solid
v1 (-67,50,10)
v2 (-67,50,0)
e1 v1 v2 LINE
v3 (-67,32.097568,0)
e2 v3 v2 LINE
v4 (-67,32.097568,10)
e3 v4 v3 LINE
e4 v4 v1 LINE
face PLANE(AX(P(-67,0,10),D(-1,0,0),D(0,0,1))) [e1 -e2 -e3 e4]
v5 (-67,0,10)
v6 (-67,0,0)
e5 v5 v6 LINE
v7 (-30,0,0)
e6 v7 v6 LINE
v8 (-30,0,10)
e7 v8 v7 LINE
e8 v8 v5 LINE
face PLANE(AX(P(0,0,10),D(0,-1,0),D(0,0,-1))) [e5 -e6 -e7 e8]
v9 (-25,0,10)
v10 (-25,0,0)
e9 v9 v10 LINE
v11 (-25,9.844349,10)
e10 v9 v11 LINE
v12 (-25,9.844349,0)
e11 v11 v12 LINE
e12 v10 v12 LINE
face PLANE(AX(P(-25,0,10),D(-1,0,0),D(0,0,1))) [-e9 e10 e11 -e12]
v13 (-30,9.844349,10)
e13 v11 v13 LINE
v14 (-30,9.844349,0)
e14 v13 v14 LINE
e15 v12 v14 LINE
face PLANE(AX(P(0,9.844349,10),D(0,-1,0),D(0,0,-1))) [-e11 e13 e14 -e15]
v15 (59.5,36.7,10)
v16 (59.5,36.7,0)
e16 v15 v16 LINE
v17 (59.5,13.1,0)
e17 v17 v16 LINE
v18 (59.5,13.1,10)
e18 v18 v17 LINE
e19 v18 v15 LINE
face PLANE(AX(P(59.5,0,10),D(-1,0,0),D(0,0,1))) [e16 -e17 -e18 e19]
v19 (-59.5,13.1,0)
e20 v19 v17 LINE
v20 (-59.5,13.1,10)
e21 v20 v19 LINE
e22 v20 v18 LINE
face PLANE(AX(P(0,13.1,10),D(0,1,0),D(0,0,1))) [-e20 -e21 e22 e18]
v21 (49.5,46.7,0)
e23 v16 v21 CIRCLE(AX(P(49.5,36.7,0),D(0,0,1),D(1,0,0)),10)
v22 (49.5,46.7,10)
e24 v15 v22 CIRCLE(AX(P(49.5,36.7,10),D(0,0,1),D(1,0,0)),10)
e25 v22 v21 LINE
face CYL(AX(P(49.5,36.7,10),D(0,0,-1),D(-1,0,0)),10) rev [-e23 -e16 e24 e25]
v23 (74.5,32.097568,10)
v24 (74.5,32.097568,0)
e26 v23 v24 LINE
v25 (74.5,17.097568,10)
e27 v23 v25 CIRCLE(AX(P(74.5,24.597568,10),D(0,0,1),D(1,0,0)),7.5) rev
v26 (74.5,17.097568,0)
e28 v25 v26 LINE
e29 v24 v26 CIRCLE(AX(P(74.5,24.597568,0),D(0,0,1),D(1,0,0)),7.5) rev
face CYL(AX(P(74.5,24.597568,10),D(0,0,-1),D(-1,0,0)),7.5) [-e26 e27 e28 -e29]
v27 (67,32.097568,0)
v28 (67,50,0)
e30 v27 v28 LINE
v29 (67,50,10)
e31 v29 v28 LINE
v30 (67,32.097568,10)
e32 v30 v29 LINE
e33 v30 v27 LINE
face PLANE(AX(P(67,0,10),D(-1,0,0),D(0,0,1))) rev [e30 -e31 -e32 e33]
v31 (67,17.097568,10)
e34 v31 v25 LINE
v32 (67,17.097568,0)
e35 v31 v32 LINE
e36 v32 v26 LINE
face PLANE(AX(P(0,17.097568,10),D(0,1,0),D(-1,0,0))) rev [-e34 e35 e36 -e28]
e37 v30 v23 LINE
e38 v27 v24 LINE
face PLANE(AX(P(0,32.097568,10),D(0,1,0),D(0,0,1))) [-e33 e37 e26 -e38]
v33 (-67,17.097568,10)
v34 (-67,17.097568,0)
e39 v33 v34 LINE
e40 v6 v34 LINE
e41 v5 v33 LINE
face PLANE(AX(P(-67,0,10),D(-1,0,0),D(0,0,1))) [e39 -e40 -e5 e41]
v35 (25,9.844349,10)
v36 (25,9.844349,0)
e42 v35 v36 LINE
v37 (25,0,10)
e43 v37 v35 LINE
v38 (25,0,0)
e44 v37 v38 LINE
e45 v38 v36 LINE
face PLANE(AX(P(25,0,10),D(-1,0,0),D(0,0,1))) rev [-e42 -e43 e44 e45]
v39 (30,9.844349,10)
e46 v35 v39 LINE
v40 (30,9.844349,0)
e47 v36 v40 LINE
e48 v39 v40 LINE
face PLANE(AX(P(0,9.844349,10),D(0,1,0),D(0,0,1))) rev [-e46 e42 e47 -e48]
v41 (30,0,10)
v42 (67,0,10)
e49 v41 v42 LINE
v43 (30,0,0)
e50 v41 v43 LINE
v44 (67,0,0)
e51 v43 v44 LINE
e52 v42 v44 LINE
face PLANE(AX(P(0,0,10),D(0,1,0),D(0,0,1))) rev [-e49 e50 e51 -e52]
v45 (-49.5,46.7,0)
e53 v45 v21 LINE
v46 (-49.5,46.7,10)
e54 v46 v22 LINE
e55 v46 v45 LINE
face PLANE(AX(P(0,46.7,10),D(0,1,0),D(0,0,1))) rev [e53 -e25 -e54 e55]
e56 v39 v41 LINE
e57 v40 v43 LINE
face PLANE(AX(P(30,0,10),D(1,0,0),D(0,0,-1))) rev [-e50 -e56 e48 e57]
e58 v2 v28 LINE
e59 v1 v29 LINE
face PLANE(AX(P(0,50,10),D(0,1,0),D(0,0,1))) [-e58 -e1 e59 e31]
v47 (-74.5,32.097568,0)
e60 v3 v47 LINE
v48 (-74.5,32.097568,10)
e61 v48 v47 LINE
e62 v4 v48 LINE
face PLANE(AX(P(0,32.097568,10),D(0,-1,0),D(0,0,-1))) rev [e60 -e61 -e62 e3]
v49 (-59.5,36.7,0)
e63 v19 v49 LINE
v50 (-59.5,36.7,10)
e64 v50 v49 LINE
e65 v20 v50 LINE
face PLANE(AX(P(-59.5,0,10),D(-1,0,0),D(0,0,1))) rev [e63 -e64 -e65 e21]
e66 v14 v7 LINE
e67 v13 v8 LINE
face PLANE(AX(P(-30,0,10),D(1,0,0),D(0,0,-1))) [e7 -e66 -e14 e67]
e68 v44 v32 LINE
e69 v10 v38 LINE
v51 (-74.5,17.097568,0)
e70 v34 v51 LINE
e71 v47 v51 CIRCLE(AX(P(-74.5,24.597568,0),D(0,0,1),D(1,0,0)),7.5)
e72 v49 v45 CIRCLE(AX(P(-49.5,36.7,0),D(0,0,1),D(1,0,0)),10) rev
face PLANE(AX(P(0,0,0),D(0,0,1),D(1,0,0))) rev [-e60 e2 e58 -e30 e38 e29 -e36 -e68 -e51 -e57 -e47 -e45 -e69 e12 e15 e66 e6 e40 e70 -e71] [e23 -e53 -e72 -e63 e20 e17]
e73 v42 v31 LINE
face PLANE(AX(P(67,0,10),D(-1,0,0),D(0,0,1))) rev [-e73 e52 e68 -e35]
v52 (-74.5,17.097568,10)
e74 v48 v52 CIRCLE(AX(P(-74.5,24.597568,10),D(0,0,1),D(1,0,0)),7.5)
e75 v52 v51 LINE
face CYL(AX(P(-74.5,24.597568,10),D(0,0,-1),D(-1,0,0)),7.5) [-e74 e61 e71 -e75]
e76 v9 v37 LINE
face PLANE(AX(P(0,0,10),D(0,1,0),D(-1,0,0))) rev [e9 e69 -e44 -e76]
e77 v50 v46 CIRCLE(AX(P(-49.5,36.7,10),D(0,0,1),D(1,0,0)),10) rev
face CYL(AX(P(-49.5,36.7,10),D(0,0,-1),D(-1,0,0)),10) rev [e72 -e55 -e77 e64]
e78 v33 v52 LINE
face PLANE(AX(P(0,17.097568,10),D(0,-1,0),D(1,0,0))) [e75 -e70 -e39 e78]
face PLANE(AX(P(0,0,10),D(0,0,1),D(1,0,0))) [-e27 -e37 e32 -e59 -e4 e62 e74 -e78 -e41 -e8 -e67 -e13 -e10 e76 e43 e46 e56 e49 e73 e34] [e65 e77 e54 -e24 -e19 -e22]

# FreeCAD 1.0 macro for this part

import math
import FreeCAD as App
import Part
import Sketcher
Q = App.Units.Quantity

doc = App.newDocument("Part")
params = doc.addObject("Spreadsheet::Sheet", "Params")
for row, (alias, value) in enumerate([
    ("sketch1_radius", "10 mm"),
    ("sketch1_radius2", "7.5 mm"),
    ("sketch1_width", "50 mm"),
    ("sketch1_width2", "5 mm"),
    ("sketch1_width3", "37 mm"),
    ("pad1_length", "10 mm"),
], start=1):
    params.set(f"A{row}", alias)
    params.set(f"B{row}", "=" + value)
    params.setAlias(f"B{row}", alias)

body = doc.addObject("PartDesign::Body", "Body")

sketch1 = body.newObject("Sketcher::SketchObject", "Sketch")
sketch1.AttachmentSupport = (doc.getObject("XY_Plane"), [""])
sketch1.MapMode = "FlatFace"
sketch1.addGeometry(Part.LineSegment(App.Vector(-25, 9.844349, 0), App.Vector(-25, 0, 0)), False)
sketch1.addGeometry(Part.LineSegment(App.Vector(-25, 0, 0), App.Vector(25, 0, 0)), False)
sketch1.addGeometry(Part.LineSegment(App.Vector(25, 0, 0), App.Vector(25, 9.844349, 0)), False)
sketch1.addGeometry(Part.LineSegment(App.Vector(25, 9.844349, 0), App.Vector(30, 9.844349, 0)), False)
sketch1.addGeometry(Part.LineSegment(App.Vector(30, 9.844349, 0), App.Vector(30, 0, 0)), False)
sketch1.addGeometry(Part.LineSegment(App.Vector(30, 0, 0), App.Vector(67, 0, 0)), False)
sketch1.addGeometry(Part.LineSegment(App.Vector(67, 0, 0), App.Vector(67, 17.097568, 0)), False)
sketch1.addGeometry(Part.LineSegment(App.Vector(67, 17.097568, 0), App.Vector(74.5, 17.097568, 0)), False)
sketch1.addGeometry(Part.ArcOfCircle(Part.Circle(App.Vector(74.5, 24.597568, 0), App.Vector(0, 0, 1), 7.5), math.radians(-90), math.radians(90)), False)
sketch1.addGeometry(Part.LineSegment(App.Vector(74.5, 32.097568, 0), App.Vector(67, 32.097568, 0)), False)
sketch1.addGeometry(Part.LineSegment(App.Vector(67, 32.097568, 0), App.Vector(67, 50, 0)), False)
sketch1.addGeometry(Part.LineSegment(App.Vector(67, 50, 0), App.Vector(-67, 50, 0)), False)
sketch1.addGeometry(Part.LineSegment(App.Vector(-67, 50, 0), App.Vector(-67, 32.097568, 0)), False)
sketch1.addGeometry(Part.LineSegment(App.Vector(-67, 32.097568, 0), App.Vector(-74.5, 32.097568, 0)), False)
sketch1.addGeometry(Part.ArcOfCircle(Part.Circle(App.Vector(-74.5, 24.597568, 0), App.Vector(0, 0, 1), 7.5), math.radians(90), math.radians(270)), False)
sketch1.addGeometry(Part.LineSegment(App.Vector(-74.5, 17.097568, 0), App.Vector(-67, 17.097568, 0)), False)
sketch1.addGeometry(Part.LineSegment(App.Vector(-67, 17.097568, 0), App.Vector(-67, 0, 0)), False)
sketch1.addGeometry(Part.LineSegment(App.Vector(-67, 0, 0), App.Vector(-30, 0, 0)), False)
sketch1.addGeometry(Part.LineSegment(App.Vector(-30, 0, 0), App.Vector(-30, 9.844349, 0)), False)
sketch1.addGeometry(Part.LineSegment(App.Vector(-30, 9.844349, 0), App.Vector(-25, 9.844349, 0)), False)
sketch1.addGeometry(Part.LineSegment(App.Vector(59.5, 36.7, 0), App.Vector(59.5, 13.1, 0)), False)
sketch1.addGeometry(Part.LineSegment(App.Vector(59.5, 13.1, 0), App.Vector(-59.5, 13.1, 0)), False)
sketch1.addGeometry(Part.LineSegment(App.Vector(-59.5, 13.1, 0), App.Vector(-59.5, 36.7, 0)), False)
sketch1.addGeometry(Part.ArcOfCircle(Part.Circle(App.Vector(-49.5, 36.7, 0), App.Vector(0, 0, 1), 10), math.radians(90), math.radians(180)), False)
sketch1.addGeometry(Part.LineSegment(App.Vector(-49.5, 46.7, 0), App.Vector(49.5, 46.7, 0)), False)
sketch1.addGeometry(Part.ArcOfCircle(Part.Circle(App.Vector(49.5, 36.7, 0), App.Vector(0, 0, 1), 10), math.radians(0), math.radians(90)), False)
sketch1.addConstraint(Sketcher.Constraint("Coincident", 0, 2, 1, 1))
sketch1.addConstraint(Sketcher.Constraint("Coincident", 1, 2, 2, 1))
sketch1.addConstraint(Sketcher.Constraint("Coincident", 2, 2, 3, 1))
sketch1.addConstraint(Sketcher.Constraint("Coincident", 3, 2, 4, 1))
sketch1.addConstraint(Sketcher.Constraint("Coincident", 4, 2, 5, 1))
sketch1.addConstraint(Sketcher.Constraint("Coincident", 5, 2, 6, 1))
sketch1.addConstraint(Sketcher.Constraint("Coincident", 6, 2, 7, 1))
sketch1.addConstraint(Sketcher.Constraint("Tangent", 7, 2, 8, 1))
sketch1.addConstraint(Sketcher.Constraint("Tangent", 8, 2, 9, 1))
sketch1.addConstraint(Sketcher.Constraint("Coincident", 9, 2, 10, 1))
sketch1.addConstraint(Sketcher.Constraint("Coincident", 10, 2, 11, 1))
sketch1.addConstraint(Sketcher.Constraint("Coincident", 11, 2, 12, 1))
sketch1.addConstraint(Sketcher.Constraint("Coincident", 12, 2, 13, 1))
sketch1.addConstraint(Sketcher.Constraint("Tangent", 13, 2, 14, 1))
sketch1.addConstraint(Sketcher.Constraint("Tangent", 14, 2, 15, 1))
sketch1.addConstraint(Sketcher.Constraint("Coincident", 15, 2, 16, 1))
sketch1.addConstraint(Sketcher.Constraint("Coincident", 16, 2, 17, 1))
sketch1.addConstraint(Sketcher.Constraint("Coincident", 17, 2, 18, 1))
sketch1.addConstraint(Sketcher.Constraint("Coincident", 18, 2, 19, 1))
sketch1.addConstraint(Sketcher.Constraint("Coincident", 19, 2, 0, 1))
sketch1.addConstraint(Sketcher.Constraint("Coincident", 20, 2, 21, 1))
sketch1.addConstraint(Sketcher.Constraint("Coincident", 21, 2, 22, 1))
sketch1.addConstraint(Sketcher.Constraint("Tangent", 22, 2, 23, 2))
sketch1.addConstraint(Sketcher.Constraint("Tangent", 23, 1, 24, 1))
sketch1.addConstraint(Sketcher.Constraint("Tangent", 24, 2, 25, 2))
sketch1.addConstraint(Sketcher.Constraint("Tangent", 25, 1, 20, 1))
sketch1.addConstraint(Sketcher.Constraint("Vertical", 0))
sketch1.addConstraint(Sketcher.Constraint("Horizontal", 1))
sketch1.addConstraint(Sketcher.Constraint("Vertical", 2))
sketch1.addConstraint(Sketcher.Constraint("Horizontal", 3))
sketch1.addConstraint(Sketcher.Constraint("Vertical", 4))
sketch1.addConstraint(Sketcher.Constraint("Horizontal", 5))
sketch1.addConstraint(Sketcher.Constraint("Vertical", 6))
sketch1.addConstraint(Sketcher.Constraint("Horizontal", 7))
sketch1.addConstraint(Sketcher.Constraint("Horizontal", 9))
sketch1.addConstraint(Sketcher.Constraint("Vertical", 10))
sketch1.addConstraint(Sketcher.Constraint("Horizontal", 11))
sketch1.addConstraint(Sketcher.Constraint("Vertical", 12))
sketch1.addConstraint(Sketcher.Constraint("Horizontal", 13))
sketch1.addConstraint(Sketcher.Constraint("Horizontal", 15))
sketch1.addConstraint(Sketcher.Constraint("Vertical", 16))
sketch1.addConstraint(Sketcher.Constraint("Horizontal", 17))
sketch1.addConstraint(Sketcher.Constraint("Vertical", 18))
sketch1.addConstraint(Sketcher.Constraint("Horizontal", 19))
sketch1.addConstraint(Sketcher.Constraint("Vertical", 20))
sketch1.addConstraint(Sketcher.Constraint("Horizontal", 21))
sketch1.addConstraint(Sketcher.Constraint("Vertical", 22))
sketch1.addConstraint(Sketcher.Constraint("Horizontal", 24))
sketch1.addConstraint(Sketcher.Constraint("Equal", 8, 14))
sketch1.addConstraint(Sketcher.Constraint("Equal", 23, 25))
sketch1.addConstraint(Sketcher.Constraint("Symmetric", 0, 2, 1, 2, -1, 1))
sketch1.addConstraint(Sketcher.Constraint("Symmetric", 5, 2, 16, 2, -1, 1))
sketch1.addConstraint(Sketcher.Constraint("Symmetric", 8, 3, 14, 3, -2))
sketch1.addConstraint(Sketcher.Constraint("Symmetric", 4, 2, 17, 2, -2))
sketch1.addConstraint(Sketcher.Constraint("Horizontal", 3, 2, 18, 2))
sketch1.addConstraint(Sketcher.Constraint("Vertical", 6, 2, 9, 2))
sketch1.addConstraint(Sketcher.Constraint("Vertical", 12, 2, 15, 2))
sketch1.addConstraint(Sketcher.Constraint("Radius", 23, Q("10 mm")))
sketch1.addConstraint(Sketcher.Constraint("Radius", 8, Q("7.5 mm")))
sketch1.addConstraint(Sketcher.Constraint("DistanceX", 1, 1, 1, 2, Q("50 mm")))
sketch1.addConstraint(Sketcher.Constraint("DistanceX", 3, 1, 3, 2, Q("5 mm")))
sketch1.addConstraint(Sketcher.Constraint("DistanceX", 5, 1, 5, 2, Q("37 mm")))
sketch1.addConstraint(Sketcher.Constraint("DistanceX", 21, 2, 21, 1, Q("119 mm")))
sketch1.addConstraint(Sketcher.Constraint("DistanceX", 7, 1, 7, 2, Q("7.5 mm")))
sketch1.addConstraint(Sketcher.Constraint("DistanceY", 20, 2, 20, 1, Q("23.6 mm")))
sketch1.addConstraint(Sketcher.Constraint("DistanceY", -1, 1, 10, 2, Q("50 mm")))
sketch1.addConstraint(Sketcher.Constraint("DistanceX", 14, 3, 23, 3, Q("25 mm")))
sketch1.addConstraint(Sketcher.Constraint("DistanceY", -1, 1, 23, 3, Q("36.7 mm")))
sketch1.addConstraint(Sketcher.Constraint("DistanceY", 0, 2, 0, 1, Q("9.844349 mm")))
sketch1.addConstraint(Sketcher.Constraint("DistanceY", 6, 1, 6, 2, Q("17.097568 mm")))
sketch1.setExpression("Constraints[57]", "Params.sketch1_radius")
sketch1.setExpression("Constraints[58]", "Params.sketch1_radius2")
sketch1.setExpression("Constraints[59]", "Params.sketch1_width")
sketch1.setExpression("Constraints[60]", "Params.sketch1_width2")
sketch1.setExpression("Constraints[61]", "Params.sketch1_width3")
pad1 = body.newObject("PartDesign::Pad", "Pad")
pad1.Profile = sketch1
pad1.setExpression("Length", "Params.pad1_length")

doc.recompute()
